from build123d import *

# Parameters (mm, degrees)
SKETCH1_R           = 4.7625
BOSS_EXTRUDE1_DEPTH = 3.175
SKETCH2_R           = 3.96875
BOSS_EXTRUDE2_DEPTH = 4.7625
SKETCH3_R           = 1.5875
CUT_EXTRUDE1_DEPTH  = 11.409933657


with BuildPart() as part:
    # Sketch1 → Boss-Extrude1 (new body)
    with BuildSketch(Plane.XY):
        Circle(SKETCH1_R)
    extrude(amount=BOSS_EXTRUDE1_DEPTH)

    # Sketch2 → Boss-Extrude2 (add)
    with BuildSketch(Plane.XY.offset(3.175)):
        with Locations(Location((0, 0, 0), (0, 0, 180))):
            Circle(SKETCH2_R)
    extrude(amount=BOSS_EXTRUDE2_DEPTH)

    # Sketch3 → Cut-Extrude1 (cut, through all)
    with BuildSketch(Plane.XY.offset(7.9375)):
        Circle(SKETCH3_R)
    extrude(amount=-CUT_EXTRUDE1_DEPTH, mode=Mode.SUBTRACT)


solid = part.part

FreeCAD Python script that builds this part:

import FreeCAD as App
import Part
import Sketcher

V = App.Vector
Q = App.Units.Quantity

doc = App.newDocument("Part")
params = doc.addObject("Spreadsheet::Sheet", "Params")
for row, (alias, value) in enumerate([
    ("sketch1_diameter", "0.375 in"),
    ("pad1_length", "0.125 in"),
    ("sketch2_diameter", "0.3125 in"),
    ("pad2_length", "0.1875 in"),
    ("sketch3_diameter", "0.125 in"),
], start=1):
    params.set(f"A{row}", alias)
    params.set(f"B{row}", "=" + value)
    params.setAlias(f"B{row}", alias)

body = doc.addObject("PartDesign::Body", "Body")

sketch1 = doc.addObject("Sketcher::SketchObject", "Sketch")
body.addObject(sketch1)
sketch1.AttachmentSupport = (doc.XY_Plane, [""])
sketch1.MapMode = "FlatFace"
sketch1.addGeometry(Part.Circle(V(0, 0, 0), V(0, 0, 1), 4.8), False)
sketch1.addConstraint([
    Sketcher.Constraint("Coincident", 0, 3, -1, 1),
    Sketcher.Constraint("Diameter", 0, Q("0.375 in")),
])
sketch1.setExpression("Constraints[1]", "Params.sketch1_diameter")
pad1 = doc.addObject("PartDesign::Pad", "Pad")
body.addObject(pad1)
pad1.Profile = sketch1
pad1.setExpression("Length", "Params.pad1_length")

sketch2 = doc.addObject("Sketcher::SketchObject", "Sketch001")
body.addObject(sketch2)
sketch2.AttachmentSupport = (doc.XY_Plane, [""])
sketch2.MapMode = "FlatFace"
sketch2.AttachmentOffset = App.Placement(V(0, 0, 0.125 * 25.4), App.Rotation())
sketch2.addGeometry(Part.Circle(V(0, 0, 0), V(0, 0, 1), 4), False)
sketch2.addConstraint([
    Sketcher.Constraint("Coincident", 0, 3, -1, 1),
    Sketcher.Constraint("Diameter", 0, Q("0.3125 in")),
])
sketch2.setExpression("Constraints[1]", "Params.sketch2_diameter")
pad2 = doc.addObject("PartDesign::Pad", "Pad001")
body.addObject(pad2)
pad2.Profile = sketch2
pad2.setExpression("Length", "Params.pad2_length")

sketch3 = doc.addObject("Sketcher::SketchObject", "Sketch002")
body.addObject(sketch3)
sketch3.AttachmentSupport = (doc.XY_Plane, [""])
sketch3.MapMode = "FlatFace"
sketch3.AttachmentOffset = App.Placement(V(0, 0, 0.3125 * 25.4), App.Rotation())
sketch3.addGeometry(Part.Circle(V(0, 0, 0), V(0, 0, 1), 1.6), False)
sketch3.addConstraint([
    Sketcher.Constraint("Coincident", 0, 3, -1, 1),
    Sketcher.Constraint("Diameter", 0, Q("0.125 in")),
])
sketch3.setExpression("Constraints[1]", "Params.sketch3_diameter")
pocket1 = doc.addObject("PartDesign::Pocket", "Pocket")
body.addObject(pocket1)
pocket1.Profile = sketch3
pocket1.Type = "ThroughAll"

doc.recompute()
